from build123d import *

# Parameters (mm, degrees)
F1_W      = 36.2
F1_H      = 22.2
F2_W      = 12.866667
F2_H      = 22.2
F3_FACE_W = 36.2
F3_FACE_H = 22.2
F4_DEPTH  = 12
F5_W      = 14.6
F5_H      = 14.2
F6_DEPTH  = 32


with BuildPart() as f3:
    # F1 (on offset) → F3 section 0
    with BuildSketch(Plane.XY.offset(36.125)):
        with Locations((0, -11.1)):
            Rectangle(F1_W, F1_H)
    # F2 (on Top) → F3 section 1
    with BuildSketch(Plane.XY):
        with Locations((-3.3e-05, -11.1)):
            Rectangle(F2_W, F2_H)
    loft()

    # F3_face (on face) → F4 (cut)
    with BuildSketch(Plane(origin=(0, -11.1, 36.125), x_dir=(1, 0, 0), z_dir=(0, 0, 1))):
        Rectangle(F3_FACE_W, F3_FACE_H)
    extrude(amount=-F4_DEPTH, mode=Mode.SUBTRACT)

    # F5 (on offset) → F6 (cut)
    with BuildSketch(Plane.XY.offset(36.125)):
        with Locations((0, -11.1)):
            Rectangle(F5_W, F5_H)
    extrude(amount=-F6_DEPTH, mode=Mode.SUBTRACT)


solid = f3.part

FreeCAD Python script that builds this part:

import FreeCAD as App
import Part
import Sketcher

V = App.Vector


def add_polygon(sketch, points):
    """Adds a closed chain of lines whose ends are joined by coincident constraints."""
    first, n = sketch.GeometryCount, len(points)
    for a, b in zip(points, points[1:] + points[:1]):
        sketch.addGeometry(Part.LineSegment(App.Vector(*a, 0), App.Vector(*b, 0)), False)
    for i in range(n):
        sketch.addConstraint(Sketcher.Constraint("Coincident", first + i, 2, first + (i + 1) % n, 1))

doc = App.newDocument("Part")
params = doc.addObject("Spreadsheet::Sheet", "Params")
for row, (alias, value) in enumerate([
    ("sketch1_width", "36.2 mm"),
    ("sketch1_height", "22.2 mm"),
    ("sketch2_height", "22.2 mm"),
    ("sketch3_width", "36.2 mm"),
    ("sketch3_height", "22.2 mm"),
    ("pocket1_length", "12 mm"),
    ("sketch4_width", "14.6 mm"),
    ("sketch4_height", "14.2 mm"),
    ("pocket2_length", "32 mm"),
], start=1):
    params.set(f"A{row}", alias)
    params.set(f"B{row}", "=" + value)
    params.setAlias(f"B{row}", alias)

body = doc.addObject("PartDesign::Body", "Body")

# Sketch on XY plane
sketch1 = body.newObject("Sketcher::SketchObject", "Sketch")
sketch1.AttachmentSupport = (doc.getObject("XY_Plane"), [""])
sketch1.MapMode = "FlatFace"
sketch1.AttachmentOffset = App.Placement(V(0, 0, 36.125), App.Rotation())
add_polygon(sketch1, [(-18, 0), (-18, -22), (18, -22), (18, 0)])  # lines 0-3
sketch1.addConstraint([
    Sketcher.Constraint("Vertical", 0),
    Sketcher.Constraint("Horizontal", 1),
    Sketcher.Constraint("Vertical", 2),
    Sketcher.Constraint("Horizontal", 3),
    Sketcher.Constraint("Symmetric", 2, 2, 3, 2, -1, 1),
    Sketcher.Constraint("DistanceX", 1, 1, 1, 2, 36.2),
    Sketcher.Constraint("DistanceY", 0, 2, 0, 1, 22.2),
])
sketch1.setExpression("Constraints[9]", "Params.sketch1_width")
sketch1.setExpression("Constraints[10]", "Params.sketch1_height")

# Sketch on XY plane
sketch2 = body.newObject("Sketcher::SketchObject", "Sketch001")
sketch2.AttachmentSupport = (doc.getObject("XY_Plane"), [""])
sketch2.MapMode = "FlatFace"
add_polygon(sketch2, [(-6, 0), (-6, -22), (6, -22), (6, 0)])  # lines 0-3
sketch2.addConstraint([
    Sketcher.Constraint("Vertical", 0),
    Sketcher.Constraint("Horizontal", 1),
    Sketcher.Constraint("Vertical", 2),
    Sketcher.Constraint("Horizontal", 3),
    Sketcher.Constraint("PointOnObject", 2, 2, -1),
    Sketcher.Constraint("DistanceY", 0, 2, 0, 1, 22.2),
    Sketcher.Constraint("DistanceX", -1, 1, 1, 2, 6.4333),
    Sketcher.Constraint("DistanceX", 1, 1, 1, 2, 12.866667),
])
sketch2.setExpression("Constraints[9]", "Params.sketch2_height")

additiveloft = body.newObject("PartDesign::AdditiveLoft", "AdditiveLoft")
additiveloft.Profile = sketch1
additiveloft.Sections = [sketch2]

# Sketch on XY plane
sketch3 = body.newObject("Sketcher::SketchObject", "Sketch002")
sketch3.AttachmentSupport = (doc.getObject("XY_Plane"), [""])
sketch3.MapMode = "FlatFace"
sketch3.AttachmentOffset = App.Placement(V(0, 0, 36.125), App.Rotation())
add_polygon(sketch3, [(-18, 0), (-18, -22), (18, -22), (18, 0)])  # lines 0-3
sketch3.addConstraint([
    Sketcher.Constraint("Vertical", 0),
    Sketcher.Constraint("Horizontal", 1),
    Sketcher.Constraint("Vertical", 2),
    Sketcher.Constraint("Horizontal", 3),
    Sketcher.Constraint("Symmetric", 2, 2, 3, 2, -1, 1),
    Sketcher.Constraint("DistanceX", 1, 1, 1, 2, 36.2),
    Sketcher.Constraint("DistanceY", 0, 2, 0, 1, 22.2),
])
sketch3.setExpression("Constraints[9]", "Params.sketch3_width")
sketch3.setExpression("Constraints[10]", "Params.sketch3_height")
pocket1 = body.newObject("PartDesign::Pocket", "Pocket")
pocket1.Profile = sketch3
pocket1.setExpression("Length", "Params.pocket1_length")

# Sketch on XY plane
sketch4 = body.newObject("Sketcher::SketchObject", "Sketch003")
sketch4.AttachmentSupport = (doc.getObject("XY_Plane"), [""])
sketch4.MapMode = "FlatFace"
sketch4.AttachmentOffset = App.Placement(V(0, 0, 36.125), App.Rotation())
add_polygon(sketch4, [(-7, -4), (-7, -18), (7, -18), (7, -4)])  # lines 0-3
sketch4.addConstraint([
    Sketcher.Constraint("Vertical", 0),
    Sketcher.Constraint("Horizontal", 1),
    Sketcher.Constraint("Vertical", 2),
    Sketcher.Constraint("Horizontal", 3),
    Sketcher.Constraint("DistanceX", 1, 1, 1, 2, 14.6),
    Sketcher.Constraint("DistanceY", 0, 2, 0, 1, 14.2),
    Sketcher.Constraint("DistanceY", 2, 2, -1, 1, 4.0),
    Sketcher.Constraint("DistanceX", 0, 2, -1, 1, 7.3),
])
sketch4.setExpression("Constraints[8]", "Params.sketch4_width")
sketch4.setExpression("Constraints[9]", "Params.sketch4_height")
pocket2 = body.newObject("PartDesign::Pocket", "Pocket001")
pocket2.Profile = sketch4
pocket2.setExpression("Length", "Params.pocket2_length")

doc.recompute()
